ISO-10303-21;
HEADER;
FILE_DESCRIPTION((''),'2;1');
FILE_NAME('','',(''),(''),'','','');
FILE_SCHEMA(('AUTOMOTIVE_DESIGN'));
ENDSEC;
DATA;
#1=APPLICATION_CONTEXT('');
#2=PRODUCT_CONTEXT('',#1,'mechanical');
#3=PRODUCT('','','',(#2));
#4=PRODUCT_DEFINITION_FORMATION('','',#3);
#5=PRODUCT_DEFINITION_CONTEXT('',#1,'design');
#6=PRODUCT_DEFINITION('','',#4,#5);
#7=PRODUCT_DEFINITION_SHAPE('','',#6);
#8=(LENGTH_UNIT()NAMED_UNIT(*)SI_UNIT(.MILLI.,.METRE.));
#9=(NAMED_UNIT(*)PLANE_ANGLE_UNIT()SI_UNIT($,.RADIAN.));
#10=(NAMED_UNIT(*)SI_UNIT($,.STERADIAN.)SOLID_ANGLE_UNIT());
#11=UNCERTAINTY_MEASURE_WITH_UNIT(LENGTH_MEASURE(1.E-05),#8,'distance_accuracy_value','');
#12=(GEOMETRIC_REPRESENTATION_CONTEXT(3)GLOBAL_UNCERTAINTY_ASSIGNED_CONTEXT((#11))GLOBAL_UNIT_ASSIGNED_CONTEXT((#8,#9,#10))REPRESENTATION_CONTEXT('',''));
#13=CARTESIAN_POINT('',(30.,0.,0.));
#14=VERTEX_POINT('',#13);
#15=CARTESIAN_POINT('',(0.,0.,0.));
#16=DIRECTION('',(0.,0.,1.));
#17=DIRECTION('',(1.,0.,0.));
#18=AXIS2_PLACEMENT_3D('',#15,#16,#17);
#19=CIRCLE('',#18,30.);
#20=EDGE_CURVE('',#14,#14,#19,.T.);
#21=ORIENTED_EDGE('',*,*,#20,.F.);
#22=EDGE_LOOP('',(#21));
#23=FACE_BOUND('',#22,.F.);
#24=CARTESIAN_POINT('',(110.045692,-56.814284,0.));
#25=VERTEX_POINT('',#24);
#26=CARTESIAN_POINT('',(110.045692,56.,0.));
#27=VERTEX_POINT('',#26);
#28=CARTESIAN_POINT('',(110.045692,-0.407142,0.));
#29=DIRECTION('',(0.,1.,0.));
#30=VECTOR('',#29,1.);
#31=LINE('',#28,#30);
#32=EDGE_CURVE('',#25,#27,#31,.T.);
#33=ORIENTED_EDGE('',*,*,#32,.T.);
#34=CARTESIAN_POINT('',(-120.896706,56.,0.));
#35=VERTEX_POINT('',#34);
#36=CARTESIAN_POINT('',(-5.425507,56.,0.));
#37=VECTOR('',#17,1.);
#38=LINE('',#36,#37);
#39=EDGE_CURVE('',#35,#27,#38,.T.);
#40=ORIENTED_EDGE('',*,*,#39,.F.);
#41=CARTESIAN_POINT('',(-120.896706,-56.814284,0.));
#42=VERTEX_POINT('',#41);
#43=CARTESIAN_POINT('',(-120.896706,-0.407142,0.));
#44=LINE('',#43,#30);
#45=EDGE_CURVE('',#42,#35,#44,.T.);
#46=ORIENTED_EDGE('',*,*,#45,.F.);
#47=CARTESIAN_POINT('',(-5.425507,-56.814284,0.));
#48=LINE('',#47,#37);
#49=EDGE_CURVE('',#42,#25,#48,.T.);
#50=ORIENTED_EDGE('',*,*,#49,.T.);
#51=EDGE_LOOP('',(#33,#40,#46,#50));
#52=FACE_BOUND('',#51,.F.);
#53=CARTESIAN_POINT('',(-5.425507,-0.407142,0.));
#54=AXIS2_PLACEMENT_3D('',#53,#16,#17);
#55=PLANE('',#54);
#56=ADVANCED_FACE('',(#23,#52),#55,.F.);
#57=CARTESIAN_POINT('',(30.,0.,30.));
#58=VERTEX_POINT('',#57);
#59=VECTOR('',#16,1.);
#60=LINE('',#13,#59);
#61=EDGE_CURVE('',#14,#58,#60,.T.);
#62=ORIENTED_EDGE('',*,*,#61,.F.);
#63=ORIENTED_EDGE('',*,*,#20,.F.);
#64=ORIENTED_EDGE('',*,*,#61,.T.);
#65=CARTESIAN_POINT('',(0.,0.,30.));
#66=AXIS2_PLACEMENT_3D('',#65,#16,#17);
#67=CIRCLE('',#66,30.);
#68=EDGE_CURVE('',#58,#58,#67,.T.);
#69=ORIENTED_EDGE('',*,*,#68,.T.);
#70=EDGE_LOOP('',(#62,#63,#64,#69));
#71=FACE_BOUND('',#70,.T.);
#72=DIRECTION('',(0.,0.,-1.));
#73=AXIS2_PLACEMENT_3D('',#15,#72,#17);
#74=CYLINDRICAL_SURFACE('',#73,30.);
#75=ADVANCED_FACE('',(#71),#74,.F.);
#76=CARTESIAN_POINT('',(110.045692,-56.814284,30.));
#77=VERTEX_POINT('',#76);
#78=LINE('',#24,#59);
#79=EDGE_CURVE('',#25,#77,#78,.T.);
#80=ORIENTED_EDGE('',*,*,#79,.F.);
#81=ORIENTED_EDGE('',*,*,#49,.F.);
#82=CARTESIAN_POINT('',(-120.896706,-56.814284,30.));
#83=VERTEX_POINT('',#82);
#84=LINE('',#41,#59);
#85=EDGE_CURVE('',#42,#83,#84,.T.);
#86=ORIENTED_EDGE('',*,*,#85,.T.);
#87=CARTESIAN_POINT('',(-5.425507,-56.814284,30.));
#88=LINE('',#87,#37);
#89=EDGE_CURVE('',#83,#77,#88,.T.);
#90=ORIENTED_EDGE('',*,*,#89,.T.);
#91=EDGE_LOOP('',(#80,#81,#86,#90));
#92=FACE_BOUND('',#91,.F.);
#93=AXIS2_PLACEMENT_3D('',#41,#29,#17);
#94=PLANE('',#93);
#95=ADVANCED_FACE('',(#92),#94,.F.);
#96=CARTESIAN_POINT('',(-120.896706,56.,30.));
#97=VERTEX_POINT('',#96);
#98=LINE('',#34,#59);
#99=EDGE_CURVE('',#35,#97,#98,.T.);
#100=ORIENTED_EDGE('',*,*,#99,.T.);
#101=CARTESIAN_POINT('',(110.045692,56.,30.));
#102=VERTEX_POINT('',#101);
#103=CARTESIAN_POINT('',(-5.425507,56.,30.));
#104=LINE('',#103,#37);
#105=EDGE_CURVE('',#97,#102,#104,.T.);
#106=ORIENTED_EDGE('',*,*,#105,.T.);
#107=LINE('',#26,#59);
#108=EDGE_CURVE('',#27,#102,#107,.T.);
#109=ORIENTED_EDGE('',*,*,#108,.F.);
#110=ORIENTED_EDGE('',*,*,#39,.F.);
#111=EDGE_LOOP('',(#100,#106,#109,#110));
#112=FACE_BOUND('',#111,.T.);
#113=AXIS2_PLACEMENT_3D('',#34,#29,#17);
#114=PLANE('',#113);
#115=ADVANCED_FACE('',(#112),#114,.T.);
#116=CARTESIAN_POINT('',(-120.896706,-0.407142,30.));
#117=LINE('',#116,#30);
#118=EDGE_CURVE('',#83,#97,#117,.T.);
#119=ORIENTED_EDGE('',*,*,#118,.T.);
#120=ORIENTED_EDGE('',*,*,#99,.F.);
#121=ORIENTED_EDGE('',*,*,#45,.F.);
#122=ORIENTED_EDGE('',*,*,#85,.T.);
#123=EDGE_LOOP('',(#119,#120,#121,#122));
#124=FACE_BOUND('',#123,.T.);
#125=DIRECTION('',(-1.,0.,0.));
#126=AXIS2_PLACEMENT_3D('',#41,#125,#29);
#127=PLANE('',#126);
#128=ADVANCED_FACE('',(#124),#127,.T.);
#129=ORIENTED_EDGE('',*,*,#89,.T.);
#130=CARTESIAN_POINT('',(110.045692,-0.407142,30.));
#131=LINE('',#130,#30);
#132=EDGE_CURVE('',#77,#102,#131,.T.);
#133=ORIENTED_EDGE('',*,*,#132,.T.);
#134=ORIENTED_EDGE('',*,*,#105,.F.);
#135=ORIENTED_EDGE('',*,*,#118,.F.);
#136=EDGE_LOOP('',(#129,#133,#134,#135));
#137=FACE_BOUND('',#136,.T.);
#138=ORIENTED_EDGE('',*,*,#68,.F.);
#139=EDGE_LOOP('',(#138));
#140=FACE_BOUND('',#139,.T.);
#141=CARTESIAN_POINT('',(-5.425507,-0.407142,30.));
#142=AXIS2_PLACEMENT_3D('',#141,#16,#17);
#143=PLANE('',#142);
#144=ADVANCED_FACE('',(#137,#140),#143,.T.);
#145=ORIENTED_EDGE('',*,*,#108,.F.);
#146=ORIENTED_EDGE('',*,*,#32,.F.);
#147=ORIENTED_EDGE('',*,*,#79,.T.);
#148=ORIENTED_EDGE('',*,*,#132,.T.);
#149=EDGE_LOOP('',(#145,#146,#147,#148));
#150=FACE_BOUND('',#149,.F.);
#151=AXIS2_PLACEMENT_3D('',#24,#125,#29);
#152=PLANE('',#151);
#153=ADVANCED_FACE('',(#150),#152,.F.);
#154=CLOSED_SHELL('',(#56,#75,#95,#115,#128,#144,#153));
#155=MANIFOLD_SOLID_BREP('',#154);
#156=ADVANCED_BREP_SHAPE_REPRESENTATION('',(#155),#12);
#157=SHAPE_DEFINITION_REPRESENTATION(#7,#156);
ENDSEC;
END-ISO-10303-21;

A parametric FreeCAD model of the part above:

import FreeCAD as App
import Part
import Sketcher
Q = App.Units.Quantity


def add_polygon(sketch, points):
    """Adds a closed chain of lines whose ends are joined by coincident constraints."""
    first, n = sketch.GeometryCount, len(points)
    for a, b in zip(points, points[1:] + points[:1]):
        sketch.addGeometry(Part.LineSegment(App.Vector(*a, 0), App.Vector(*b, 0)), False)
    for i in range(n):
        sketch.addConstraint(Sketcher.Constraint("Coincident", first + i, 2, first + (i + 1) % n, 1))

doc = App.newDocument("Part")
body = doc.addObject("PartDesign::Body", "Body")

# Sketch on XY plane
sketch1 = doc.addObject("Sketcher::SketchObject", "Sketch")
body.addObject(sketch1)
sketch1.AttachmentSupport = (doc.XY_Plane, [""])
sketch1.MapMode = "FlatFace"
add_polygon(sketch1, [(-121, 56), (-121, -57), (110, -57), (110, 56)])  # lines 0-3
sketch1.addGeometry(Part.Circle(App.Vector(0, 0, 0), App.Vector(0, 0, 1), 30), False)  # 4
sketch1.addConstraint([
    Sketcher.Constraint("Vertical", 0),
    Sketcher.Constraint("Horizontal", 1),
    Sketcher.Constraint("Vertical", 2),
    Sketcher.Constraint("Horizontal", 3),
    Sketcher.Constraint("Coincident", 4, 3, -1, 1),
    Sketcher.Constraint("Diameter", 4, Q("60 mm")),
    Sketcher.Constraint("DistanceY", -1, 1, 2, 2, Q("56 mm")),
    Sketcher.Constraint("DistanceX", 1, 1, 1, 2, Q("230.942398 mm")),
    Sketcher.Constraint("DistanceY", 0, 2, 0, 1, Q("112.814285 mm")),
    Sketcher.Constraint("DistanceX", 0, 2, -1, 1, Q("120.896706 mm")),
])
pad1 = doc.addObject("PartDesign::Pad", "Pad")
body.addObject(pad1)
pad1.Profile = sketch1
pad1.Length = 30

doc.recompute()
